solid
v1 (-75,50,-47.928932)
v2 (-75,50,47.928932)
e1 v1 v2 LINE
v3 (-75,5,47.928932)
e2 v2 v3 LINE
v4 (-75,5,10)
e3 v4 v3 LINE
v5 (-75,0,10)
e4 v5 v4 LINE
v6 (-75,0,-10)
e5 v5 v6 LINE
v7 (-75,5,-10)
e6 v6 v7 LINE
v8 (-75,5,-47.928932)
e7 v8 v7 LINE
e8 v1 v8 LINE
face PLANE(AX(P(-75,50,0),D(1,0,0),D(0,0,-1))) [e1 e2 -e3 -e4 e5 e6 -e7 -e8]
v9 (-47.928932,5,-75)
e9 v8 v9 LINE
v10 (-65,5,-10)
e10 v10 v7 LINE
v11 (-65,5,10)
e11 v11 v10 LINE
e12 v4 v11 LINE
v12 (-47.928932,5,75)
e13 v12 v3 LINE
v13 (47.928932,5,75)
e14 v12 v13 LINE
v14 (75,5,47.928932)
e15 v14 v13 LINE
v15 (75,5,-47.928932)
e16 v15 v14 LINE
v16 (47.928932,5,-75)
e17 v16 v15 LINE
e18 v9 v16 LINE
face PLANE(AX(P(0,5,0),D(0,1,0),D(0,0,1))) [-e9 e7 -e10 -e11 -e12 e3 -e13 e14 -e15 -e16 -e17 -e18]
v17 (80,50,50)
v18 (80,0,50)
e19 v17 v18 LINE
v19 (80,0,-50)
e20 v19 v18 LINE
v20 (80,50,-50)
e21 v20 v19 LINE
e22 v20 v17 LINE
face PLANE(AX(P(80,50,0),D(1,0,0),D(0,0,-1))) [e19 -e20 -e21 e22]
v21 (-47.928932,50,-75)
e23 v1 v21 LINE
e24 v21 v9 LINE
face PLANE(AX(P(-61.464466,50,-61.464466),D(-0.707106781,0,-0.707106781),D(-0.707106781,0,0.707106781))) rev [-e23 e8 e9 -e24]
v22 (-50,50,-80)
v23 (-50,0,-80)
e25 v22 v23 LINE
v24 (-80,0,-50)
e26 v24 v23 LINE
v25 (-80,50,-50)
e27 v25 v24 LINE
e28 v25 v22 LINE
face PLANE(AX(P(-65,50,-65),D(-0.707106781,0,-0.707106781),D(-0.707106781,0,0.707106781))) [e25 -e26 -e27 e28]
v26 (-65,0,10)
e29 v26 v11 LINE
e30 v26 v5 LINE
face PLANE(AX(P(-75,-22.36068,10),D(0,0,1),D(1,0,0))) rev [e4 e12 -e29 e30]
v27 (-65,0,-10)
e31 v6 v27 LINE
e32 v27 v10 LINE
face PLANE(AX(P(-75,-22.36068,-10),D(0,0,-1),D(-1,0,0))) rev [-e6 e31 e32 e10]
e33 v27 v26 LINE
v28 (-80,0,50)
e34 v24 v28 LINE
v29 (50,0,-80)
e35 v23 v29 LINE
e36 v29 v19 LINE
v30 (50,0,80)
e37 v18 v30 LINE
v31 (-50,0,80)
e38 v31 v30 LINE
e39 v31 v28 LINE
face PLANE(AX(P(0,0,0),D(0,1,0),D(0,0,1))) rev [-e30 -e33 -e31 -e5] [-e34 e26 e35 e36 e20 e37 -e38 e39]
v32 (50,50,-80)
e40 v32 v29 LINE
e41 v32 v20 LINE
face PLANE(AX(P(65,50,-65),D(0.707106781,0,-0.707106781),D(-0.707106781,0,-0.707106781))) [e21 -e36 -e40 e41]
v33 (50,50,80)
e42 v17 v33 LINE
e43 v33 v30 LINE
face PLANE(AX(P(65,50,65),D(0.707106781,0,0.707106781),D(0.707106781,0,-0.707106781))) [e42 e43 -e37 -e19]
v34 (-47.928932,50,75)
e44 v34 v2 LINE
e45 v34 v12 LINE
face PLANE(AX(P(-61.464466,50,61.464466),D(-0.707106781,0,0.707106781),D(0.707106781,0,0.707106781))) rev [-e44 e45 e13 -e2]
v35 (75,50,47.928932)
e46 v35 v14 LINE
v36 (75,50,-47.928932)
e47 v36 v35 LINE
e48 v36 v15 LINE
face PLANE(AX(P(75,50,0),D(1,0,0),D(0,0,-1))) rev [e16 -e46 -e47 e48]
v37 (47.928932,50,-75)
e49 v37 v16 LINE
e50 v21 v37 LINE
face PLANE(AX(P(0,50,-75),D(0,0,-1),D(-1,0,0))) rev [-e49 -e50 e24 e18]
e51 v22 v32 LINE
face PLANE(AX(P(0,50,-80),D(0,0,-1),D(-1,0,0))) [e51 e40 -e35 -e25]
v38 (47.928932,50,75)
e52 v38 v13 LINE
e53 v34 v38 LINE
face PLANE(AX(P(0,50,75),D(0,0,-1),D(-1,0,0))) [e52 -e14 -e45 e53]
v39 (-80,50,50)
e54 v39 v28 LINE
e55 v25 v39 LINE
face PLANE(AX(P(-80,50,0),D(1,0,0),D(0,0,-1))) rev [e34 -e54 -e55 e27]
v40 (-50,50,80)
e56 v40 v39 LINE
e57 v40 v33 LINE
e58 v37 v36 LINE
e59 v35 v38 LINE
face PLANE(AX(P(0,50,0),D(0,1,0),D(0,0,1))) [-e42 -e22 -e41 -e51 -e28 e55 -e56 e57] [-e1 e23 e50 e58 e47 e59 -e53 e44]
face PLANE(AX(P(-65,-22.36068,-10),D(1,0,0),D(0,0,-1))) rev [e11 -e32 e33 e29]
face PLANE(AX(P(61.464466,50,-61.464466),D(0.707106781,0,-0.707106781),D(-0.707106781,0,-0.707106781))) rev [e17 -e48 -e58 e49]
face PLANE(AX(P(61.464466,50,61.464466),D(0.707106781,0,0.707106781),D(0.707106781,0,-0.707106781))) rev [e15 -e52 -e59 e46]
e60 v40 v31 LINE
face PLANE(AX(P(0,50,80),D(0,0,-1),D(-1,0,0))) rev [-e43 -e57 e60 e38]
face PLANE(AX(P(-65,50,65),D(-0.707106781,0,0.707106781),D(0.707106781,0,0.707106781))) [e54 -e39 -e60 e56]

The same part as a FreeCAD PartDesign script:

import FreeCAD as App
import Part
import Sketcher
from FreeCAD import Vector
Q = App.Units.Quantity


def faces_at(feature, points):
    """Names of the faces that lie closest to the given points."""
    faces = feature.Shape.Faces
    near = lambda p: min(range(len(faces)), key=lambda i: faces[i].distToShape(Part.Vertex(*p))[0])
    return sorted({f"Face{near(p) + 1}" for p in points})

doc = App.newDocument("Part")
body = doc.addObject("PartDesign::Body", "Body")

sketch1 = body.newObject("Sketcher::SketchObject", "Sketch")
sketch1.AttachmentSupport = (doc.getObject("XZ_Plane"), [""])
sketch1.MapMode = "FlatFace"
sketch1.addGeometry(Part.LineSegment(Vector(-50, -80, 0), Vector(-80, -50, 0)), False)
sketch1.addGeometry(Part.LineSegment(Vector(-80, -50, 0), Vector(-80, 50, 0)), False)
sketch1.addGeometry(Part.LineSegment(Vector(-80, 50, 0), Vector(-50, 80, 0)), False)
sketch1.addGeometry(Part.LineSegment(Vector(-50, 80, 0), Vector(50, 80, 0)), False)
sketch1.addGeometry(Part.LineSegment(Vector(50, 80, 0), Vector(80, 50, 0)), False)
sketch1.addGeometry(Part.LineSegment(Vector(80, 50, 0), Vector(80, -50, 0)), False)
sketch1.addGeometry(Part.LineSegment(Vector(80, -50, 0), Vector(50, -80, 0)), False)
sketch1.addGeometry(Part.LineSegment(Vector(50, -80, 0), Vector(-50, -80, 0)), False)
sketch1.addConstraint(Sketcher.Constraint("Coincident", 0, 2, 1, 1))
sketch1.addConstraint(Sketcher.Constraint("Coincident", 1, 2, 2, 1))
sketch1.addConstraint(Sketcher.Constraint("Coincident", 2, 2, 3, 1))
sketch1.addConstraint(Sketcher.Constraint("Coincident", 3, 2, 4, 1))
sketch1.addConstraint(Sketcher.Constraint("Coincident", 4, 2, 5, 1))
sketch1.addConstraint(Sketcher.Constraint("Coincident", 5, 2, 6, 1))
sketch1.addConstraint(Sketcher.Constraint("Coincident", 6, 2, 7, 1))
sketch1.addConstraint(Sketcher.Constraint("Coincident", 7, 2, 0, 1))
sketch1.addConstraint(Sketcher.Constraint("Vertical", 1))
sketch1.addConstraint(Sketcher.Constraint("Horizontal", 3))
sketch1.addConstraint(Sketcher.Constraint("Vertical", 5))
sketch1.addConstraint(Sketcher.Constraint("Horizontal", 7))
sketch1.addConstraint(Sketcher.Constraint("Symmetric", 0, 2, 4, 2, -1, 1))
sketch1.addConstraint(Sketcher.Constraint("Symmetric", 2, 2, 6, 2, -1, 1))
sketch1.addConstraint(Sketcher.Constraint("Perpendicular", 0, 2))
sketch1.addConstraint(Sketcher.Constraint("Perpendicular", 2, 4))
sketch1.addConstraint(Sketcher.Constraint("Perpendicular", 4, 6))
sketch1.addConstraint(Sketcher.Constraint("Horizontal", 1, 2, 4, 2))
sketch1.addConstraint(Sketcher.Constraint("Vertical", 3, 2, 6, 2))
sketch1.addConstraint(Sketcher.Constraint("Equal", 7, 1))
sketch1.addConstraint(Sketcher.Constraint("DistanceX", 3, 1, 3, 2, Q("100 mm")))
sketch1.addConstraint(Sketcher.Constraint("DistanceX", 0, 2, -1, 1, Q("80 mm")))
pad1 = body.newObject("PartDesign::Pad", "Pad")
pad1.Profile = sketch1
pad1.Length = 50
pad1.Reversed = True
doc.recompute()

thickness = body.newObject("PartDesign::Thickness", "Thickness")
thickness.Base = (pad1, faces_at(pad1, [(0, 50, 0)]))
thickness.Value = 5
thickness.Reversed = True
thickness.Join = "Intersection"

sketch2 = body.newObject("Sketcher::SketchObject", "Sketch001")
sketch2.AttachmentSupport = (doc.getObject("XZ_Plane"), [""])
sketch2.MapMode = "FlatFace"
sketch2.AttachmentOffset = App.Placement(Vector(0, 0, -5), App.Rotation())
sketch2.addGeometry(Part.LineSegment(Vector(-75, -10, 0), Vector(-75, 10, 0)), False)
sketch2.addGeometry(Part.LineSegment(Vector(-75, 10, 0), Vector(-65, 10, 0)), False)
sketch2.addGeometry(Part.LineSegment(Vector(-65, 10, 0), Vector(-65, -10, 0)), False)
sketch2.addGeometry(Part.LineSegment(Vector(-65, -10, 0), Vector(-75, -10, 0)), False)
sketch2.addConstraint(Sketcher.Constraint("Coincident", 0, 2, 1, 1))
sketch2.addConstraint(Sketcher.Constraint("Coincident", 1, 2, 2, 1))
sketch2.addConstraint(Sketcher.Constraint("Coincident", 2, 2, 3, 1))
sketch2.addConstraint(Sketcher.Constraint("Coincident", 3, 2, 0, 1))
sketch2.addConstraint(Sketcher.Constraint("Vertical", 0))
sketch2.addConstraint(Sketcher.Constraint("Horizontal", 1))
sketch2.addConstraint(Sketcher.Constraint("Vertical", 2))
sketch2.addConstraint(Sketcher.Constraint("Horizontal", 3))
sketch2.addConstraint(Sketcher.Constraint("DistanceX", 1, 1, 1, 2, Q("10 mm")))
sketch2.addConstraint(Sketcher.Constraint("DistanceY", 0, 1, 0, 2, Q("20 mm")))
sketch2.addConstraint(Sketcher.Constraint("DistanceX", 0, 2, -1, 1, Q("75 mm")))
sketch2.addConstraint(Sketcher.Constraint("DistanceY", -1, 1, 0, 2, Q("10 mm")))
pocket1 = body.newObject("PartDesign::Pocket", "Pocket")
pocket1.Profile = sketch2
pocket1.Length = 5
pocket1.Reversed = True

doc.recompute()
